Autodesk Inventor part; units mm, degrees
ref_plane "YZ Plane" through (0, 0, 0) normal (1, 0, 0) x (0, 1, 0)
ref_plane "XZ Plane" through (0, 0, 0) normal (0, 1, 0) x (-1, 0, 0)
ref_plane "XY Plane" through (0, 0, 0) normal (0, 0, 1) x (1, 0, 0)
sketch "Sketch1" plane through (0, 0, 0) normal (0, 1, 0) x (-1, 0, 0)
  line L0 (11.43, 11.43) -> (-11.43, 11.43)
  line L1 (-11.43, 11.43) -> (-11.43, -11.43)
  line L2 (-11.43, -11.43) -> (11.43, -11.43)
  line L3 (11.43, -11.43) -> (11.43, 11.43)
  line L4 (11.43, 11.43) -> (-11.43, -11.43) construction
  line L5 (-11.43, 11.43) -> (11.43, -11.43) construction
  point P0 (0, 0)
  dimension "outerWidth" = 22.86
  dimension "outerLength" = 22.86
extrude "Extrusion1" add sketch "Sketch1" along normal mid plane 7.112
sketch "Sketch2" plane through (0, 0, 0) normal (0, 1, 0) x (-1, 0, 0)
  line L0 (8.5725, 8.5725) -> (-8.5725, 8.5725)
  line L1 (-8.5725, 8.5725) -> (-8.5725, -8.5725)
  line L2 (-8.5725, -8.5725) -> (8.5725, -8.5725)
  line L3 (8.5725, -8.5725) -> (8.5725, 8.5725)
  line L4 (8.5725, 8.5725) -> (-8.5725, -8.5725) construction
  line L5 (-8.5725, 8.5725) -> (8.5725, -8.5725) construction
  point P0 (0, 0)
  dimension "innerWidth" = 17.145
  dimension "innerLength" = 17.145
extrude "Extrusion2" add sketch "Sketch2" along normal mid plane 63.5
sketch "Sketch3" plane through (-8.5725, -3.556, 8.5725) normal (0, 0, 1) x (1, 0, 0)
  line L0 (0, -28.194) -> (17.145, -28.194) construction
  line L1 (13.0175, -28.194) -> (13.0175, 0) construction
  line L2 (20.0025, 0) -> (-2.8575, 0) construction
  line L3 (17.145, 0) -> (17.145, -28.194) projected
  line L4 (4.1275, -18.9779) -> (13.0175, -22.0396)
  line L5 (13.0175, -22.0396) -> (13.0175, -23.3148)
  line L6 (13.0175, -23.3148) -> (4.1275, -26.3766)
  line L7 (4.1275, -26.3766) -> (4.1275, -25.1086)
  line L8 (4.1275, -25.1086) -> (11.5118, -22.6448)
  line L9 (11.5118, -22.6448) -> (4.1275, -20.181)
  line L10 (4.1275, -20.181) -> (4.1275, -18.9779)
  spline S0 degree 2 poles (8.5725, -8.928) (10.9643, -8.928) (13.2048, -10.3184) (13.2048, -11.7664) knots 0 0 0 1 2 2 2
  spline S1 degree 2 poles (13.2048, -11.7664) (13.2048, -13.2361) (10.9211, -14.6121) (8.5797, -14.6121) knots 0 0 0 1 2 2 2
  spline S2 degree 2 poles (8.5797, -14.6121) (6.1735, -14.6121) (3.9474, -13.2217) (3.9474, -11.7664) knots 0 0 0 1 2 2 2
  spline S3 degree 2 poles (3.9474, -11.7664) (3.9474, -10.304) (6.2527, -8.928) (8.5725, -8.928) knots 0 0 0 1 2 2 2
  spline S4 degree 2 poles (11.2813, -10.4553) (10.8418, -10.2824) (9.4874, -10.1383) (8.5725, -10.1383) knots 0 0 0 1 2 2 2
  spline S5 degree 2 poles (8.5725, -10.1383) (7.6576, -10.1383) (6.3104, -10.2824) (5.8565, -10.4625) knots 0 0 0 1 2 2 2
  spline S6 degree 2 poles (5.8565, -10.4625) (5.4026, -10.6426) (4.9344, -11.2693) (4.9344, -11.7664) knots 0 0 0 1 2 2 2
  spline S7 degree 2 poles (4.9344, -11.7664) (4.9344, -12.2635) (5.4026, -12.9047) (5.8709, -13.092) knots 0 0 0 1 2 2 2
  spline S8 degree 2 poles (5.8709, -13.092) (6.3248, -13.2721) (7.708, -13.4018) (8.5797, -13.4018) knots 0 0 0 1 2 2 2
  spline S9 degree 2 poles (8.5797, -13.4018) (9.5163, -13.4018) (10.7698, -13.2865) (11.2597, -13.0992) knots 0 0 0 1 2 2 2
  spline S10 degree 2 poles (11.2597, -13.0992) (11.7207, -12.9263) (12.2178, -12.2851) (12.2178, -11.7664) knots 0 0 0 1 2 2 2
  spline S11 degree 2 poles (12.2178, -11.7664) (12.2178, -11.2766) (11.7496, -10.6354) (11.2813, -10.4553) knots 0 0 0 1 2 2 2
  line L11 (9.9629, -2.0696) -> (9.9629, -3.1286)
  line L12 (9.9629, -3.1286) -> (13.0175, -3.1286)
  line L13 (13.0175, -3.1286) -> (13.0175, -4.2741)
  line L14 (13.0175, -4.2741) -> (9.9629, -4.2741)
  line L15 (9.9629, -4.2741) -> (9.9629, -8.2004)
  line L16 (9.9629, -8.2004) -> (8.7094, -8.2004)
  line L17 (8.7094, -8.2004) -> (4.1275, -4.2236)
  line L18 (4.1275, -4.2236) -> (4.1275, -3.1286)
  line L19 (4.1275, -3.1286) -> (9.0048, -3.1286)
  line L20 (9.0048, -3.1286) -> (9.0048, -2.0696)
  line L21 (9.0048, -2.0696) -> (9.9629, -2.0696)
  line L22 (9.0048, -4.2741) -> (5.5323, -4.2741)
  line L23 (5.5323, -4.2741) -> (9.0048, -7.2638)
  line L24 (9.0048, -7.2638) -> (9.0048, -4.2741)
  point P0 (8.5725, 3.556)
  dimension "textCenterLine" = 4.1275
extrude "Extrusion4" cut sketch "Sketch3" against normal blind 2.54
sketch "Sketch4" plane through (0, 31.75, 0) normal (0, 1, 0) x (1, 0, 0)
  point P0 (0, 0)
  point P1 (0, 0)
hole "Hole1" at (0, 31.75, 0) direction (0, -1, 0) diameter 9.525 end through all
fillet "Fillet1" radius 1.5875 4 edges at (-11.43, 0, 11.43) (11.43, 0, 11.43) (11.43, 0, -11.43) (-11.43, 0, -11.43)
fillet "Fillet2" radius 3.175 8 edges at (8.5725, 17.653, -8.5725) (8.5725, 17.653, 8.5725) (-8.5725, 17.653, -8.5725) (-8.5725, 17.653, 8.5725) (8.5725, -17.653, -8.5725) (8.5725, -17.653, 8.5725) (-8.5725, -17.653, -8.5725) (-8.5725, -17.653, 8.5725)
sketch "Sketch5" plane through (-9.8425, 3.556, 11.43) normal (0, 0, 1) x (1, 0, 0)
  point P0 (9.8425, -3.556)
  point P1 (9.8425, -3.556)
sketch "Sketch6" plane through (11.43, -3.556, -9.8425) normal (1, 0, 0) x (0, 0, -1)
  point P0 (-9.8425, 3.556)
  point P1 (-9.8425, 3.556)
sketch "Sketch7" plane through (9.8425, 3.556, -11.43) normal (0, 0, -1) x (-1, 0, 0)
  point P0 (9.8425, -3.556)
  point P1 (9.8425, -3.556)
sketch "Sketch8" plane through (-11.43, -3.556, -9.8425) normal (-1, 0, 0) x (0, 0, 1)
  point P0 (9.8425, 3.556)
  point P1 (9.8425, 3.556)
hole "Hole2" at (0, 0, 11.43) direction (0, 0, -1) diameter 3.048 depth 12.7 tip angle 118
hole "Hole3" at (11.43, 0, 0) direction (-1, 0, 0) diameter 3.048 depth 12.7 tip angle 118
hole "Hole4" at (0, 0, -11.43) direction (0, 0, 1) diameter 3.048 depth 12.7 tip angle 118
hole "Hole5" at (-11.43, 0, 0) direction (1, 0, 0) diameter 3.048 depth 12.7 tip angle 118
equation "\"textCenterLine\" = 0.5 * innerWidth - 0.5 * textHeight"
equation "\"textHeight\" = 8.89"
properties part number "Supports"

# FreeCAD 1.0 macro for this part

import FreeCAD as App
import Part
import Sketcher

V = App.Vector
Q = App.Units.Quantity


def edges_at(feature, points):
    """Names of the edges that pass closest to the given points."""
    edges = feature.Shape.Edges
    near = lambda p: min(range(len(edges)), key=lambda i: edges[i].distToShape(Part.Vertex(*p))[0])
    return sorted({f"Edge{near(p) + 1}" for p in points})


def add_polygon(sketch, points):
    """Adds a closed chain of lines whose ends are joined by coincident constraints."""
    first, n = sketch.GeometryCount, len(points)
    for a, b in zip(points, points[1:] + points[:1]):
        sketch.addGeometry(Part.LineSegment(App.Vector(*a, 0), App.Vector(*b, 0)), False)
    for i in range(n):
        sketch.addConstraint(Sketcher.Constraint("Coincident", first + i, 2, first + (i + 1) % n, 1))

doc = App.newDocument("Part")
body = doc.addObject("PartDesign::Body", "Body")

# Sketch on XZ plane
sketch1 = doc.addObject("Sketcher::SketchObject", "Sketch")
body.addObject(sketch1)
sketch1.AttachmentSupport = (doc.XZ_Plane, [""])
sketch1.MapMode = "FlatFace"
add_polygon(sketch1, [(-11, -11), (-11, 11), (11, 11), (11, -11)])  # lines 0-3
sketch1.addConstraint([
    Sketcher.Constraint("Vertical", 0),
    Sketcher.Constraint("Horizontal", 1),
    Sketcher.Constraint("Vertical", 2),
    Sketcher.Constraint("Horizontal", 3),
    Sketcher.Constraint("Symmetric", 0, 2, 2, 2, -1, 1),
    Sketcher.Constraint("Equal", 3, 0),
    Sketcher.Constraint("DistanceX", 1, 1, 1, 2, Q("0.9 in")),
])
pad1 = doc.addObject("PartDesign::Pad", "Pad")
body.addObject(pad1)
pad1.Profile = sketch1
pad1.Length = Q("0.28 in")
pad1.Midplane = True

# Sketch on XZ plane
sketch2 = doc.addObject("Sketcher::SketchObject", "Sketch001")
body.addObject(sketch2)
sketch2.AttachmentSupport = (doc.XZ_Plane, [""])
sketch2.MapMode = "FlatFace"
add_polygon(sketch2, [(-9, -9), (-9, 9), (9, 9), (9, -9)])  # lines 0-3
sketch2.addConstraint([
    Sketcher.Constraint("Vertical", 0),
    Sketcher.Constraint("Horizontal", 1),
    Sketcher.Constraint("Vertical", 2),
    Sketcher.Constraint("Horizontal", 3),
    Sketcher.Constraint("Symmetric", 0, 2, 2, 2, -1, 1),
    Sketcher.Constraint("Equal", 3, 0),
    Sketcher.Constraint("DistanceX", 1, 1, 1, 2, Q("0.675 in")),
])
pad2 = doc.addObject("PartDesign::Pad", "Pad001")
body.addObject(pad2)
pad2.Profile = sketch2
pad2.Length = Q("2.5 in")
pad2.Midplane = True

# Sketch on XY plane
sketch3 = doc.addObject("Sketcher::SketchObject", "Sketch002")
body.addObject(sketch3)
sketch3.AttachmentSupport = (doc.XY_Plane, [""])
sketch3.MapMode = "FlatFace"
sketch3.AttachmentOffset = App.Placement(V(0, 0, 0.3375 * 25.4), App.Rotation())
add_polygon(sketch3, [(4.445, -25.5956), (-4.445, -22.5339), (-4.445, -23.737), (2.9393, -26.2008), (-4.445, -28.6646), (-4.445, -29.9326), (4.445, -26.8708)])  # lines 0-6
sketch3.addGeometry(Part.BSplineCurve([V(0, -12.484, 0), V(2.3918, -12.484, 0), V(4.6323, -13.8744, 0), V(4.6323, -15.3224, 0)], [3, 1, 3], [0, 1, 2], False, 2, [1, 1, 1, 1], False), False)  # 7
sketch3.addGeometry(Part.BSplineCurve([V(-4.6251, -15.3224, 0), V(-4.6251, -13.86, 0), V(-2.3198, -12.484, 0), V(0, -12.484, 0)], [3, 1, 3], [0, 1, 2], False, 2, [1, 1, 1, 1], False), False)  # 8
sketch3.addGeometry(Part.BSplineCurve([V(0.0072, -18.1681, 0), V(-2.399, -18.1681, 0), V(-4.6251, -16.7777, 0), V(-4.6251, -15.3224, 0)], [3, 1, 3], [0, 1, 2], False, 2, [1, 1, 1, 1], False), False)  # 9
sketch3.addGeometry(Part.BSplineCurve([V(4.6323, -15.3224, 0), V(4.6323, -16.7921, 0), V(2.3486, -18.1681, 0), V(0.0072, -18.1681, 0)], [3, 1, 3], [0, 1, 2], False, 2, [1, 1, 1, 1], False), False)  # 10
sketch3.addGeometry(Part.BSplineCurve([V(2.7088, -14.0113, 0), V(2.2693, -13.8384, 0), V(0.9149, -13.6943, 0), V(0, -13.6943, 0)], [3, 1, 3], [0, 1, 2], False, 2, [1, 1, 1, 1], False), False)  # 11
sketch3.addGeometry(Part.BSplineCurve([V(3.6453, -15.3224, 0), V(3.6453, -14.8326, 0), V(3.1771, -14.1914, 0), V(2.7088, -14.0113, 0)], [3, 1, 3], [0, 1, 2], False, 2, [1, 1, 1, 1], False), False)  # 12
sketch3.addGeometry(Part.BSplineCurve([V(2.6872, -16.6552, 0), V(3.1482, -16.4823, 0), V(3.6453, -15.8411, 0), V(3.6453, -15.3224, 0)], [3, 1, 3], [0, 1, 2], False, 2, [1, 1, 1, 1], False), False)  # 13
sketch3.addGeometry(Part.BSplineCurve([V(0.0072, -16.9578, 0), V(0.9438, -16.9578, 0), V(2.1973, -16.8425, 0), V(2.6872, -16.6552, 0)], [3, 1, 3], [0, 1, 2], False, 2, [1, 1, 1, 1], False), False)  # 14
sketch3.addGeometry(Part.BSplineCurve([V(-2.7016, -16.648, 0), V(-2.2477, -16.8281, 0), V(-0.8645, -16.9578, 0), V(0.0072, -16.9578, 0)], [3, 1, 3], [0, 1, 2], False, 2, [1, 1, 1, 1], False), False)  # 15
sketch3.addGeometry(Part.BSplineCurve([V(-3.6381, -15.3224, 0), V(-3.6381, -15.8195, 0), V(-3.1699, -16.4607, 0), V(-2.7016, -16.648, 0)], [3, 1, 3], [0, 1, 2], False, 2, [1, 1, 1, 1], False), False)  # 16
sketch3.addGeometry(Part.BSplineCurve([V(-2.716, -14.0185, 0), V(-3.1699, -14.1986, 0), V(-3.6381, -14.8253, 0), V(-3.6381, -15.3224, 0)], [3, 1, 3], [0, 1, 2], False, 2, [1, 1, 1, 1], False), False)  # 17
sketch3.addGeometry(Part.BSplineCurve([V(0, -13.6943, 0), V(-0.9149, -13.6943, 0), V(-2.2621, -13.8384, 0), V(-2.716, -14.0185, 0)], [3, 1, 3], [0, 1, 2], False, 2, [1, 1, 1, 1], False), False)  # 18
add_polygon(sketch3, [(1.3904, -6.6846), (1.3904, -5.6256), (0.4323, -5.6256), (0.4323, -6.6846), (-4.445, -6.6846), (-4.445, -7.7796), (0.1369, -11.7564), (1.3904, -11.7564), (1.3904, -7.8301), (4.445, -7.8301), (4.445, -6.6846)])  # lines 19-29
add_polygon(sketch3, [(-3.0402, -7.8301), (0.4323, -7.8301), (0.4323, -10.8198)])  # lines 30-32
sketch3.addConstraint([
    Sketcher.Constraint("Block", 7),
    Sketcher.Constraint("Block", 8),
    Sketcher.Constraint("Block", 9),
    Sketcher.Constraint("Block", 10),
    Sketcher.Constraint("Block", 11),
    Sketcher.Constraint("Block", 12),
    Sketcher.Constraint("Block", 13),
    Sketcher.Constraint("Block", 14),
    Sketcher.Constraint("Block", 15),
    Sketcher.Constraint("Block", 16),
    Sketcher.Constraint("Block", 17),
    Sketcher.Constraint("Block", 18),
    Sketcher.Constraint("Vertical", 1),
    Sketcher.Constraint("Vertical", 4),
    Sketcher.Constraint("Vertical", 6),
    Sketcher.Constraint("Vertical", 19),
    Sketcher.Constraint("Horizontal", 20),
    Sketcher.Constraint("Vertical", 21),
    Sketcher.Constraint("Horizontal", 22),
    Sketcher.Constraint("Vertical", 23),
    Sketcher.Constraint("Horizontal", 25),
    Sketcher.Constraint("Vertical", 26),
    Sketcher.Constraint("Horizontal", 27),
    Sketcher.Constraint("Vertical", 28),
    Sketcher.Constraint("Horizontal", 29),
    Sketcher.Constraint("Horizontal", 30),
    Sketcher.Constraint("Vertical", 31),
    Sketcher.Constraint("Symmetric", 22, 2, 28, 2, -2),
    Sketcher.Constraint("Horizontal", 27, 2, 30, 2),
    Sketcher.Constraint("Vertical", 1, 2, 3, 2),
    Sketcher.Constraint("Vertical", 4, 2, 22, 2),
    Sketcher.Constraint("Vertical", 19, 2, 25, 2),
    Sketcher.Constraint("Vertical", 6, 2, 27, 2),
    Sketcher.Constraint("Vertical", 21, 2, 30, 2),
    Sketcher.Constraint("Equal", 2, 3),
    Sketcher.Constraint("Equal", 0, 5),
    Sketcher.Constraint("DistanceX", 3, 2, 5, 2, Q("0.35 in")),
    Sketcher.Constraint("DistanceY", 6, 1, 6, 2, Q("0.0502 in")),
    Sketcher.Constraint("DistanceY", 19, 1, 19, 2, Q("0.0417 in")),
    Sketcher.Constraint("DistanceY", 23, 2, 23, 1, Q("0.0431 in")),
    Sketcher.Constraint("DistanceY", 28, 1, 28, 2, Q("0.0451 in")),
    Sketcher.Constraint("DistanceY", 31, 2, 31, 1, Q("0.1177 in")),
    Sketcher.Constraint("DistanceY", 2, 2, 1, 2, Q("0.097 in")),
    Sketcher.Constraint("DistanceY", 0, 2, 21, 2, Q("0.624 in")),
    Sketcher.Constraint("Distance", 32, Q("0.1804 in")),
    Sketcher.Constraint("DistanceX", 20, 2, 20, 1, 0.958),
    Sketcher.Constraint("DistanceX", 22, 2, 22, 1, 4.8773),
    Sketcher.Constraint("DistanceX", 25, 1, 25, 2, 1.2535),
    Sketcher.Constraint("DistanceY", 1, 2, 1, 1, 1.203),
    Sketcher.Constraint("DistanceY", 4, 2, 4, 1, 1.268),
    Sketcher.Constraint("DistanceY", 26, 1, 26, 2, 3.9263),
    Sketcher.Constraint("DistanceY", 5, 2, -1, 1, Q("1.0579 in")),
    Sketcher.Constraint("DistanceX", 20, 2, 2, 2, Q("0.0987 in")),
])
pocket1 = doc.addObject("PartDesign::Pocket", "Pocket")
body.addObject(pocket1)
pocket1.Profile = sketch3
pocket1.Length = Q("0.1 in")

# Sketch on XZ plane
sketch4 = doc.addObject("Sketcher::SketchObject", "Sketch003")
body.addObject(sketch4)
sketch4.AttachmentSupport = (doc.XZ_Plane, [""])
sketch4.MapMode = "FlatFace"
sketch4.AttachmentOffset = App.Placement(V(0, 0, -1.25 * 25.4), App.Rotation())
sketch4.addGeometry(Part.Circle(V(0, 0, 0), V(0, 0, 1), 4.8), False)
sketch4.addConstraint([
    Sketcher.Constraint("Coincident", 0, 3, -1, 1),
    Sketcher.Constraint("Diameter", 0, Q("0.375 in")),
])
doc.recompute()
hole = doc.addObject("PartDesign::Hole", "Hole")
body.addObject(hole)
hole.Profile = sketch4
hole.ThreadType = "None"
hole.Diameter = Q("0.375 in")
hole.DepthType = "ThroughAll"
hole.Reversed = True
doc.recompute()

fillet = doc.addObject("PartDesign::Fillet", "Fillet")
body.addObject(fillet)
fillet.Base = (hole, edges_at(hole, [
    (-11.43, 0, 11.43),
    (11.43, 0, 11.43),
    (11.43, 0, -11.43),
    (-11.43, 0, -11.43),
]))
fillet.Radius = Q("0.0625 in")
doc.recompute()

fillet2 = doc.addObject("PartDesign::Fillet", "Fillet001")
body.addObject(fillet2)
fillet2.Base = (fillet, edges_at(fillet, [
    (8.572, 17.653, -8.572),
    (8.572, 17.653, 8.572),
    (-8.572, 17.653, -8.572),
    (-8.572, 17.653, 8.572),
    (8.572, -17.653, -8.572),
    (8.572, -17.653, 8.572),
    (-8.572, -17.653, -8.572),
    (-8.572, -17.653, 8.572),
]))
fillet2.Radius = Q("0.125 in")

# Sketch on XY plane
sketch5 = doc.addObject("Sketcher::SketchObject", "Sketch004")
body.addObject(sketch5)
sketch5.AttachmentSupport = (doc.XY_Plane, [""])
sketch5.MapMode = "FlatFace"
sketch5.AttachmentOffset = App.Placement(V(0, 0, 0.45 * 25.4), App.Rotation())
sketch5.addGeometry(Part.Circle(V(0, 0, 0), V(0, 0, 1), 1.5), False)
sketch5.addConstraint([
    Sketcher.Constraint("Coincident", 0, 3, -1, 1),
    Sketcher.Constraint("Diameter", 0, Q("0.12 in")),
])
doc.recompute()
hole2 = doc.addObject("PartDesign::Hole", "Hole001")
body.addObject(hole2)
hole2.Profile = sketch5
hole2.ThreadType = "None"
hole2.Diameter = Q("0.12 in")
hole2.DepthType = "Dimension"
hole2.Depth = Q("0.5 in")
hole2.DrillPoint = "Angled"
hole2.DrillPointAngle = 118

# Sketch on YZ plane
sketch6 = doc.addObject("Sketcher::SketchObject", "Sketch005")
body.addObject(sketch6)
sketch6.AttachmentSupport = (doc.YZ_Plane, [""])
sketch6.MapMode = "FlatFace"
sketch6.AttachmentOffset = App.Placement(V(0, 0, 0.45 * 25.4), App.Rotation())
sketch6.addGeometry(Part.Circle(V(0, 0, 0), V(0, 0, 1), 1.5), False)
sketch6.addConstraint([
    Sketcher.Constraint("Coincident", 0, 3, -1, 1),
    Sketcher.Constraint("Diameter", 0, Q("0.12 in")),
])
doc.recompute()
hole3 = doc.addObject("PartDesign::Hole", "Hole002")
body.addObject(hole3)
hole3.Profile = sketch6
hole3.ThreadType = "None"
hole3.Diameter = Q("0.12 in")
hole3.DepthType = "Dimension"
hole3.Depth = Q("0.5 in")
hole3.DrillPoint = "Angled"
hole3.DrillPointAngle = 118

# Sketch on XY plane
sketch7 = doc.addObject("Sketcher::SketchObject", "Sketch006")
body.addObject(sketch7)
sketch7.AttachmentSupport = (doc.XY_Plane, [""])
sketch7.MapMode = "FlatFace"
sketch7.AttachmentOffset = App.Placement(V(0, 0, -0.45 * 25.4), App.Rotation())
sketch7.addGeometry(Part.Circle(V(0, 0, 0), V(0, 0, 1), 1.5), False)
sketch7.addConstraint([
    Sketcher.Constraint("Coincident", 0, 3, -1, 1),
    Sketcher.Constraint("Diameter", 0, Q("0.12 in")),
])
doc.recompute()
hole4 = doc.addObject("PartDesign::Hole", "Hole003")
body.addObject(hole4)
hole4.Profile = sketch7
hole4.ThreadType = "None"
hole4.Diameter = Q("0.12 in")
hole4.DepthType = "Dimension"
hole4.Depth = Q("0.5 in")
hole4.DrillPoint = "Angled"
hole4.DrillPointAngle = 118
hole4.Reversed = True

# Sketch on YZ plane
sketch8 = doc.addObject("Sketcher::SketchObject", "Sketch007")
body.addObject(sketch8)
sketch8.AttachmentSupport = (doc.YZ_Plane, [""])
sketch8.MapMode = "FlatFace"
sketch8.AttachmentOffset = App.Placement(V(0, 0, -0.45 * 25.4), App.Rotation())
sketch8.addGeometry(Part.Circle(V(0, 0, 0), V(0, 0, 1), 1.5), False)
sketch8.addConstraint([
    Sketcher.Constraint("Coincident", 0, 3, -1, 1),
    Sketcher.Constraint("Diameter", 0, Q("0.12 in")),
])
doc.recompute()
hole5 = doc.addObject("PartDesign::Hole", "Hole004")
body.addObject(hole5)
hole5.Profile = sketch8
hole5.ThreadType = "None"
hole5.Diameter = Q("0.12 in")
hole5.DepthType = "Dimension"
hole5.Depth = Q("0.5 in")
hole5.DrillPoint = "Angled"
hole5.DrillPointAngle = 118
hole5.Reversed = True

doc.recompute()
